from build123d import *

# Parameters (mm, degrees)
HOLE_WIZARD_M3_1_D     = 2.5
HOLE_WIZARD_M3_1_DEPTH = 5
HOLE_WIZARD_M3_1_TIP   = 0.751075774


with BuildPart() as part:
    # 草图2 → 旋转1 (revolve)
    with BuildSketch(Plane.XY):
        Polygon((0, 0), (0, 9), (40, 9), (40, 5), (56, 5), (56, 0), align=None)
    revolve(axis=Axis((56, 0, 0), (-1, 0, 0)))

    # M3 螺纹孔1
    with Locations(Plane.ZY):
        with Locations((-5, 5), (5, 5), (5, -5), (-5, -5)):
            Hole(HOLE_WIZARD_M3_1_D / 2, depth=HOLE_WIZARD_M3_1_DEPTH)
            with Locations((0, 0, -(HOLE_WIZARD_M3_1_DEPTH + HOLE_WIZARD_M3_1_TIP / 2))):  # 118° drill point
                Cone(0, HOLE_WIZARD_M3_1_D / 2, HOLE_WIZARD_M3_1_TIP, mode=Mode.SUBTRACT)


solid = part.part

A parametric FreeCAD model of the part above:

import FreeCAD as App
import Part
import Sketcher
from FreeCAD import Vector
Q = App.Units.Quantity

doc = App.newDocument("Part")
params = doc.addObject("Spreadsheet::Sheet", "Params")
for row, (alias, value) in enumerate([
    ("sketch1_width", "56 mm"),
    ("sketch1_width2", "16 mm"),
    ("sketch1_height", "9 mm"),
    ("sketch1_height2", "5 mm"),
    ("revolution_angle", "360 deg"),
    ("sketch2_diameter", "2.5 mm"),
    ("hole_diameter", "2.5 mm"),
    ("hole_depth", "5 mm"),
], start=1):
    params.set(f"A{row}", alias)
    params.set(f"B{row}", "=" + value)
    params.setAlias(f"B{row}", alias)

body = doc.addObject("PartDesign::Body", "Body")

# Sketch on XY plane
sketch1 = body.newObject("Sketcher::SketchObject", "Sketch")
sketch1.AttachmentSupport = (doc.getObject("XY_Plane"), [""])
sketch1.MapMode = "FlatFace"
sketch1.addGeometry([
    Part.LineSegment(Vector(0, 9, 0), Vector(0, 0, 0)),  # 0
    Part.LineSegment(Vector(0, 0, 0), Vector(56, 0, 0)),  # 1
    Part.LineSegment(Vector(56, 0, 0), Vector(56, 5, 0)),  # 2
    Part.LineSegment(Vector(56, 5, 0), Vector(40, 5, 0)),  # 3
    Part.LineSegment(Vector(40, 5, 0), Vector(40, 9, 0)),  # 4
    Part.LineSegment(Vector(40, 9, 0), Vector(0, 9, 0)),  # 5
], False)
sketch1.addConstraint([
    Sketcher.Constraint("Coincident", 0, 2, 1, 1),
    Sketcher.Constraint("Coincident", 1, 2, 2, 1),
    Sketcher.Constraint("Coincident", 2, 2, 3, 1),
    Sketcher.Constraint("Coincident", 3, 2, 4, 1),
    Sketcher.Constraint("Coincident", 4, 2, 5, 1),
    Sketcher.Constraint("Coincident", 5, 2, 0, 1),
    Sketcher.Constraint("Vertical", 0),
    Sketcher.Constraint("Horizontal", 1),
    Sketcher.Constraint("Vertical", 2),
    Sketcher.Constraint("Horizontal", 3),
    Sketcher.Constraint("Vertical", 4),
    Sketcher.Constraint("Horizontal", 5),
    Sketcher.Constraint("Coincident", 0, 2, -1, 1),
    Sketcher.Constraint("DistanceX", 1, 1, 1, 2, Q("56 mm")),
    Sketcher.Constraint("DistanceX", 3, 2, 3, 1, Q("16 mm")),
    Sketcher.Constraint("DistanceY", 0, 2, 0, 1, Q("9 mm")),
    Sketcher.Constraint("DistanceY", 2, 1, 2, 2, Q("5 mm")),
])
sketch1.setExpression("Constraints[13]", "Params.sketch1_width")
sketch1.setExpression("Constraints[14]", "Params.sketch1_width2")
sketch1.setExpression("Constraints[15]", "Params.sketch1_height")
sketch1.setExpression("Constraints[16]", "Params.sketch1_height2")
revolution = body.newObject("PartDesign::Revolution", "Revolution")
revolution.Profile = sketch1
revolution.ReferenceAxis = (sketch1, ["H_Axis"])
revolution.setExpression("Angle", "Params.revolution_angle")

# Sketch on YZ plane
sketch2 = body.newObject("Sketcher::SketchObject", "Sketch001")
sketch2.AttachmentSupport = (doc.getObject("YZ_Plane"), [""])
sketch2.MapMode = "FlatFace"
sketch2.addGeometry([
    Part.Circle(Vector(5, -5, 0), Vector(0, 0, 1), 1.2),
    Part.Circle(Vector(5, 5, 0), Vector(0, 0, 1), 1.2),
    Part.Circle(Vector(-5, 5, 0), Vector(0, 0, 1), 1.2),
    Part.Circle(Vector(-5, -5, 0), Vector(0, 0, 1), 1.2),
], False)
sketch2.addConstraint([
    Sketcher.Constraint("Equal", 0, 1),
    Sketcher.Constraint("Equal", 1, 2),
    Sketcher.Constraint("Equal", 2, 3),
    Sketcher.Constraint("Symmetric", 0, 3, 2, 3, -1, 1),
    Sketcher.Constraint("Symmetric", 1, 3, 3, 3, -1, 1),
    Sketcher.Constraint("Symmetric", 1, 3, 2, 3, -2),
    Sketcher.Constraint("Diameter", 0, Q("2.5 mm")),
    Sketcher.Constraint("DistanceX", -1, 1, 0, 3, Q("5 mm")),
    Sketcher.Constraint("DistanceY", 0, 3, -1, 1, Q("5 mm")),
])
sketch2.setExpression("Constraints[6]", "Params.sketch2_diameter")
doc.recompute()
hole = body.newObject("PartDesign::Hole", "Hole")
hole.Profile = sketch2
hole.ThreadType = "None"
hole.setExpression("Diameter", "Params.hole_diameter")
hole.DepthType = "Dimension"
hole.setExpression("Depth", "Params.hole_depth")
hole.DrillPoint = "Angled"
hole.DrillPointAngle = 118
hole.Reversed = True

doc.recompute()
